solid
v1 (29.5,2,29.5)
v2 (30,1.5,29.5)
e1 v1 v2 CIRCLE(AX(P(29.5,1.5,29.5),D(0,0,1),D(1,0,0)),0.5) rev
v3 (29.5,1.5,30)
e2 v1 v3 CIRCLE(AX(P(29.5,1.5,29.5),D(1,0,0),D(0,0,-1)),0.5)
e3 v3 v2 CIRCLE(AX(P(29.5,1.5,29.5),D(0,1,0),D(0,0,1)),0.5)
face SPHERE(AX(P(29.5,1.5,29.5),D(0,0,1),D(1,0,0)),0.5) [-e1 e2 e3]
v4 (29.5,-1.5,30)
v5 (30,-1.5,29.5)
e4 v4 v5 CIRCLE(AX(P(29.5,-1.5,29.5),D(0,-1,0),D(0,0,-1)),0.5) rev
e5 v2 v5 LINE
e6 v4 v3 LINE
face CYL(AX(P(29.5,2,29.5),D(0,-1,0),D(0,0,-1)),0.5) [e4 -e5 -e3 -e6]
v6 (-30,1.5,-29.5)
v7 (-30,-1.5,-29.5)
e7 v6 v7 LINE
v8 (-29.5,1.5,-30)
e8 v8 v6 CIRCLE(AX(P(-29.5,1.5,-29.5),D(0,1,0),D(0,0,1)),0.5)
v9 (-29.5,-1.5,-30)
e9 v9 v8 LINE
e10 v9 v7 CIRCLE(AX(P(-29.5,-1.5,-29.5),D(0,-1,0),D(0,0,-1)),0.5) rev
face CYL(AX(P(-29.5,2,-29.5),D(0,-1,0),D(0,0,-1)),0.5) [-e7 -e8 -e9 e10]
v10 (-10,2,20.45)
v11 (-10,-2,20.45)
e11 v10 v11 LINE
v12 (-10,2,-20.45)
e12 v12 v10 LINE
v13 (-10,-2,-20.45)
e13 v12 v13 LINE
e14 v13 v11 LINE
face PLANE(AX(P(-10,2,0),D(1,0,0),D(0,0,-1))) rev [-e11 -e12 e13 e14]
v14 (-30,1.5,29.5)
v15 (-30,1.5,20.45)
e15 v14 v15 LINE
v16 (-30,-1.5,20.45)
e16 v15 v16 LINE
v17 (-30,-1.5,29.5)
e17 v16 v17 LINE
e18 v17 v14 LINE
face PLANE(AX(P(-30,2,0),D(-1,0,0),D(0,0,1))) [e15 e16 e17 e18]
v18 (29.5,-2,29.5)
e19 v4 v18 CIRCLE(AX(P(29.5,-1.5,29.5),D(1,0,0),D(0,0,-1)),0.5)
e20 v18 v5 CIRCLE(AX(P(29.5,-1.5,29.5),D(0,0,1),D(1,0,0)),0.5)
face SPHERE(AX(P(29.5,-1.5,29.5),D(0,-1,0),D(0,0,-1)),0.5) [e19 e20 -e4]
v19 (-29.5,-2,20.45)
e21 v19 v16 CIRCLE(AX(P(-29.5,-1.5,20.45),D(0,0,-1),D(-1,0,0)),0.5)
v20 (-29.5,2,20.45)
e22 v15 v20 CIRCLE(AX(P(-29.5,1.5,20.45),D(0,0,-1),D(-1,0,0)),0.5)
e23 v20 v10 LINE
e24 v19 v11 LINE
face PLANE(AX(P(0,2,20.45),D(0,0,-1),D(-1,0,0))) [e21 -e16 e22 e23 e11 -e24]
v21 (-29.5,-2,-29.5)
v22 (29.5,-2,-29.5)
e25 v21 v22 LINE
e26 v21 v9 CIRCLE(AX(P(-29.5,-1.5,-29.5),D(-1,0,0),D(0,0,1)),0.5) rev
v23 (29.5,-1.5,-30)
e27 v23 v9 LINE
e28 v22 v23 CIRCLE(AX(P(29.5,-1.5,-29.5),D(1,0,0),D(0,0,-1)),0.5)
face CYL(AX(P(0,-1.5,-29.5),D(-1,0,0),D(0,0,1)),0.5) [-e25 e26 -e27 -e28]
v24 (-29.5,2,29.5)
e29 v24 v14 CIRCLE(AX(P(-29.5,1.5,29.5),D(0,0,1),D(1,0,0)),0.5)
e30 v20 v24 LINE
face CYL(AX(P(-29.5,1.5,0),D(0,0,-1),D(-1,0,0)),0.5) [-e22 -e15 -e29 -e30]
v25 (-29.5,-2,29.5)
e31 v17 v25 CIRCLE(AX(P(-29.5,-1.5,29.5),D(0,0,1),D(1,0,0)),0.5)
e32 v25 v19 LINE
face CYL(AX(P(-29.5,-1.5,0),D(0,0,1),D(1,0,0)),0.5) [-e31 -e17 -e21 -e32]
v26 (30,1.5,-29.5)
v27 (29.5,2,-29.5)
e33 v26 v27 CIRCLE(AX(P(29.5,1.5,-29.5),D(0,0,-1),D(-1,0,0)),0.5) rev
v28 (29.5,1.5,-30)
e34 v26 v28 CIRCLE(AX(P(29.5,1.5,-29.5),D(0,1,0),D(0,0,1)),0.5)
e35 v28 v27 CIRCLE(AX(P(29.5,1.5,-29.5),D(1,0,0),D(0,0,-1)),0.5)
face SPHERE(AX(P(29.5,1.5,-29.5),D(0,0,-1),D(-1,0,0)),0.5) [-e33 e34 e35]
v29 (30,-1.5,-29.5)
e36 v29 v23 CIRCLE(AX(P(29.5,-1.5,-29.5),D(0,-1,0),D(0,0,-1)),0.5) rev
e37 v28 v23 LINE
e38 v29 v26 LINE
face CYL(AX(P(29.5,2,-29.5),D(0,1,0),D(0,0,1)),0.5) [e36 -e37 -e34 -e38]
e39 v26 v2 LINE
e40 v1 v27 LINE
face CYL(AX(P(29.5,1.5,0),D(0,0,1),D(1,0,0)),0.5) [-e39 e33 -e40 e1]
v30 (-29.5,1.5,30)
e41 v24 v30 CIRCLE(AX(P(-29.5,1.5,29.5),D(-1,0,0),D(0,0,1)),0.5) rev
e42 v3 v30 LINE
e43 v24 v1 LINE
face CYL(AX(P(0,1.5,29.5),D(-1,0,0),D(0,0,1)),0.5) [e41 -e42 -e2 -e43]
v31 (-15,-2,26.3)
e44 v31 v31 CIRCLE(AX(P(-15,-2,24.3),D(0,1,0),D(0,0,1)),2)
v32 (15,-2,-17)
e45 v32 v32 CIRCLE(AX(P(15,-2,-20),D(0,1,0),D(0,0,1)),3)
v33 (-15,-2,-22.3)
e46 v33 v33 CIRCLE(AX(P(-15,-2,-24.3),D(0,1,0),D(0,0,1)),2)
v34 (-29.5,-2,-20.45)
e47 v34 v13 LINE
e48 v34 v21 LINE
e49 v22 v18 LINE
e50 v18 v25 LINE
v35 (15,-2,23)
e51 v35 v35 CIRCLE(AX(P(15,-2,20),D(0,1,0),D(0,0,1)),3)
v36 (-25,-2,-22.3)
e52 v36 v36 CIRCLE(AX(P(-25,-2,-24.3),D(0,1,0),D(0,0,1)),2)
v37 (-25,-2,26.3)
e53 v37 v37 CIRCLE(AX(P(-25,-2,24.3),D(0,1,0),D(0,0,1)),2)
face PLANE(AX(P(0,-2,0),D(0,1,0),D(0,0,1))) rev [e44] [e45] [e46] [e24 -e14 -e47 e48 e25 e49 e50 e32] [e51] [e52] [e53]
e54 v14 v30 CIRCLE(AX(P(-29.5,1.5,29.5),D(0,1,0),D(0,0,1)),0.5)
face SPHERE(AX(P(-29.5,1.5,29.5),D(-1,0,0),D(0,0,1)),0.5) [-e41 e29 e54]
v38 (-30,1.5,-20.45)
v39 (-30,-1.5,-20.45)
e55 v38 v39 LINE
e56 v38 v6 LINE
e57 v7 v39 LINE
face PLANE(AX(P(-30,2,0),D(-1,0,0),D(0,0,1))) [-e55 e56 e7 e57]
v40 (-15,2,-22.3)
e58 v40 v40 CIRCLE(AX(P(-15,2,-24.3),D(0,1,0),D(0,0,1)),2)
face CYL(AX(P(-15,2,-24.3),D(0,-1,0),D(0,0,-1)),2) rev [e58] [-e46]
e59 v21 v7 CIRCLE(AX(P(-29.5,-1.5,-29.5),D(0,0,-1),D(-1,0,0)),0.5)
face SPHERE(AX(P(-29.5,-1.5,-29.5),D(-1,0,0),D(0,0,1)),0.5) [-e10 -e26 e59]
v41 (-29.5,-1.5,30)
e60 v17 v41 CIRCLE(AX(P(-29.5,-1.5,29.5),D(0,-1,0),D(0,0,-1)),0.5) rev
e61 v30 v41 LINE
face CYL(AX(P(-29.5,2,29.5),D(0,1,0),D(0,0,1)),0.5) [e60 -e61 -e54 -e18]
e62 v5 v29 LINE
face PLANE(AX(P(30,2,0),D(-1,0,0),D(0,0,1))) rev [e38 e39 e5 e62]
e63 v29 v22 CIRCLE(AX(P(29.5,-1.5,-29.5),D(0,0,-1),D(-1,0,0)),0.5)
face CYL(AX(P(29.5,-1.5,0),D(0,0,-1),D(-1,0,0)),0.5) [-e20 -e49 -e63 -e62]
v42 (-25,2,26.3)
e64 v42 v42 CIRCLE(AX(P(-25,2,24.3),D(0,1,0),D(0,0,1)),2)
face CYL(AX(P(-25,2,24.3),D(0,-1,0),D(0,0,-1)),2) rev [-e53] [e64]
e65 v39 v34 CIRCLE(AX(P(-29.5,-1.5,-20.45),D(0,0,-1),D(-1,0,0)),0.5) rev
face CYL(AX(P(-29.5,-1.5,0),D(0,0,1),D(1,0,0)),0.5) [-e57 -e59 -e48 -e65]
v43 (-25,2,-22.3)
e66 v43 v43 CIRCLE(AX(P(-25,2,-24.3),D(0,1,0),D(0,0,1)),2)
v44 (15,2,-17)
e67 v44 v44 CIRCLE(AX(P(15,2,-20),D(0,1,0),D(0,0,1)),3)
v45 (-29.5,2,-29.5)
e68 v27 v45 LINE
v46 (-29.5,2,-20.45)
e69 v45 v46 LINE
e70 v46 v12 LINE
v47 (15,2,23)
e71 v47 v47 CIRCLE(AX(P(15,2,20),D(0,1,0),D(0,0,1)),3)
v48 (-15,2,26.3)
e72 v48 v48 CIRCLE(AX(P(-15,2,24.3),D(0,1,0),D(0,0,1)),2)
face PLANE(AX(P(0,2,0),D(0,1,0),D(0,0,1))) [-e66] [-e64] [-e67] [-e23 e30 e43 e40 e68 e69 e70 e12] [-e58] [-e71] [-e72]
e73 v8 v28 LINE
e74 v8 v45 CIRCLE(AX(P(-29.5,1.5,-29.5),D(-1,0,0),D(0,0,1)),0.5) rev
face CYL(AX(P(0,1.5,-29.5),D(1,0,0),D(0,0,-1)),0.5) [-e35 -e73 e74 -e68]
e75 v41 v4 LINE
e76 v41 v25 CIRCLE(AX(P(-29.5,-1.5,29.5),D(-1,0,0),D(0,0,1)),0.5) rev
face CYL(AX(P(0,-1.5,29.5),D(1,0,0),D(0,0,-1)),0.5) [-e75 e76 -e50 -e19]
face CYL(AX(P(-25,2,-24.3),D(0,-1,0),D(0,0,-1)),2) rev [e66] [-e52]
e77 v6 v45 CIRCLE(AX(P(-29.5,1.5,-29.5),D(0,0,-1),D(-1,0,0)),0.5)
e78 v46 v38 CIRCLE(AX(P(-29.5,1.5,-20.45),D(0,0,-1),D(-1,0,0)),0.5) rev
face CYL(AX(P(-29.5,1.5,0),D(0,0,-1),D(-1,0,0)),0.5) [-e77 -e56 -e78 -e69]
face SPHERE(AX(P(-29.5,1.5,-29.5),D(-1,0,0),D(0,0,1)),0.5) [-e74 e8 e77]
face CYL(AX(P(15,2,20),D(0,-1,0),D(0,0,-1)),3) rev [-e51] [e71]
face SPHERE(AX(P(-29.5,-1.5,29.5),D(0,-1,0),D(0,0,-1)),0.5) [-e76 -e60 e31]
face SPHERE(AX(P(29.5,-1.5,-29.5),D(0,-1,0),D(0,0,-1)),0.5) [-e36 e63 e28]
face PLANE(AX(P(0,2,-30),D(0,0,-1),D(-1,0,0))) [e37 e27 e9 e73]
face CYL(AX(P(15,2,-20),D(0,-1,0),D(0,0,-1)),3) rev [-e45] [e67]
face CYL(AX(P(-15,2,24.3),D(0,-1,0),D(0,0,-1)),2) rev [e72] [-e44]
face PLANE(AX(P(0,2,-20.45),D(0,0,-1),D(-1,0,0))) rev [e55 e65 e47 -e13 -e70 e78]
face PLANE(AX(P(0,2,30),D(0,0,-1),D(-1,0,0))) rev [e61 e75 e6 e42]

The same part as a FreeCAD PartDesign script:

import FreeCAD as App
import Part
import Sketcher

V = App.Vector


def edges_at(feature, points):
    """Names of the edges that pass closest to the given points."""
    edges = feature.Shape.Edges
    near = lambda p: min(range(len(edges)), key=lambda i: edges[i].distToShape(Part.Vertex(*p))[0])
    return sorted({f"Edge{near(p) + 1}" for p in points})

doc = App.newDocument("Part")
body = doc.addObject("PartDesign::Body", "Body")

# Sketch on XZ plane
sketch1 = body.newObject("Sketcher::SketchObject", "Sketch")
sketch1.AttachmentSupport = (doc.getObject("XZ_Plane"), [""])
sketch1.MapMode = "FlatFace"
sketch1.addGeometry(Part.LineSegment(V(-30, 20.4, 0), V(-30, 30, 0)), False)
sketch1.addGeometry(Part.LineSegment(V(-30, 30, 0), V(30, 30, 0)), False)
sketch1.addGeometry(Part.LineSegment(V(30, 30, 0), V(30, -30, 0)), False)
sketch1.addGeometry(Part.LineSegment(V(30, -30, 0), V(-30, -30, 0)), False)
sketch1.addGeometry(Part.LineSegment(V(-30, -30, 0), V(-30, -20.4, 0)), False)
sketch1.addGeometry(Part.LineSegment(V(-30, -20.4, 0), V(-10, -20.4, 0)), False)
sketch1.addGeometry(Part.LineSegment(V(-10, -20.4, 0), V(-10, 20.4, 0)), False)
sketch1.addGeometry(Part.LineSegment(V(-10, 20.4, 0), V(-30, 20.4, 0)), False)
sketch1.addGeometry(Part.Circle(V(-25, 24.3, 0), V(0, 0, 1), 2), False)
sketch1.addGeometry(Part.Circle(V(-15, 24.3, 0), V(0, 0, 1), 2), False)
sketch1.addGeometry(Part.Circle(V(15, 20, 0), V(0, 0, 1), 3), False)
sketch1.addGeometry(Part.Circle(V(-25, -24.3, 0), V(0, 0, 1), 2), False)
sketch1.addGeometry(Part.Circle(V(-15, -24.3, 0), V(0, 0, 1), 2), False)
sketch1.addGeometry(Part.Circle(V(15, -20, 0), V(0, 0, 1), 3), False)
sketch1.addConstraint(Sketcher.Constraint("Coincident", 0, 2, 1, 1))
sketch1.addConstraint(Sketcher.Constraint("Coincident", 1, 2, 2, 1))
sketch1.addConstraint(Sketcher.Constraint("Coincident", 2, 2, 3, 1))
sketch1.addConstraint(Sketcher.Constraint("Coincident", 3, 2, 4, 1))
sketch1.addConstraint(Sketcher.Constraint("Coincident", 4, 2, 5, 1))
sketch1.addConstraint(Sketcher.Constraint("Coincident", 5, 2, 6, 1))
sketch1.addConstraint(Sketcher.Constraint("Coincident", 6, 2, 7, 1))
sketch1.addConstraint(Sketcher.Constraint("Coincident", 7, 2, 0, 1))
sketch1.addConstraint(Sketcher.Constraint("Vertical", 0))
sketch1.addConstraint(Sketcher.Constraint("Horizontal", 1))
sketch1.addConstraint(Sketcher.Constraint("Vertical", 2))
sketch1.addConstraint(Sketcher.Constraint("Horizontal", 3))
sketch1.addConstraint(Sketcher.Constraint("Vertical", 4))
sketch1.addConstraint(Sketcher.Constraint("Horizontal", 5))
sketch1.addConstraint(Sketcher.Constraint("Vertical", 6))
sketch1.addConstraint(Sketcher.Constraint("Horizontal", 7))
sketch1.addConstraint(Sketcher.Constraint("Equal", 8, 9))
sketch1.addConstraint(Sketcher.Constraint("Equal", 9, 11))
sketch1.addConstraint(Sketcher.Constraint("Equal", 11, 12))
sketch1.addConstraint(Sketcher.Constraint("Equal", 10, 13))
sketch1.addConstraint(Sketcher.Constraint("Symmetric", 0, 2, 2, 2, -1, 1))
sketch1.addConstraint(Sketcher.Constraint("Symmetric", 8, 3, 11, 3, -1))
sketch1.addConstraint(Sketcher.Constraint("Symmetric", 9, 3, 12, 3, -1))
sketch1.addConstraint(Sketcher.Constraint("Symmetric", 10, 3, 13, 3, -1))
sketch1.addConstraint(Sketcher.Constraint("Symmetric", 4, 2, 7, 2, -1))
sketch1.addConstraint(Sketcher.Constraint("Horizontal", 8, 3, 9, 3))
sketch1.addConstraint(Sketcher.Constraint("Equal", 3, 2))
sketch1.addConstraint(Sketcher.Constraint("Diameter", 8, 4.0))
sketch1.addConstraint(Sketcher.Constraint("Diameter", 10, 6.0))
sketch1.addConstraint(Sketcher.Constraint("DistanceX", 1, 1, 1, 2, 60.0))
sketch1.addConstraint(Sketcher.Constraint("DistanceX", 5, 1, 5, 2, 20.0))
sketch1.addConstraint(Sketcher.Constraint("DistanceY", 6, 1, 6, 2, 40.9))
sketch1.addConstraint(Sketcher.Constraint("DistanceX", 8, 3, -1, 1, 25.0))
sketch1.addConstraint(Sketcher.Constraint("DistanceX", 9, 3, -1, 1, 15.0))
sketch1.addConstraint(Sketcher.Constraint("DistanceX", -1, 1, 10, 3, 15.0))
sketch1.addConstraint(Sketcher.Constraint("DistanceY", -1, 1, 10, 3, 20.0))
sketch1.addConstraint(Sketcher.Constraint("DistanceY", -1, 1, 8, 3, 24.3))
pad1 = body.newObject("PartDesign::Pad", "Pad")
pad1.Profile = sketch1
pad1.Length = 4
pad1.Midplane = True
doc.recompute()

fillet = body.newObject("PartDesign::Fillet", "Fillet")
fillet.Base = (pad1, edges_at(pad1, [
    (-30, -2, -25.225),
    (0, -2, -30),
    (30, -2, 0),
    (0, -2, 30),
    (-30, -2, 25.225),
    (-30, 0, -30),
    (30, 0, -30),
    (30, 0, 30),
    (-30, 0, 30),
    (-30, 2, 25.225),
    (0, 2, 30),
    (30, 2, 0),
    (0, 2, -30),
    (-30, 2, -25.225),
]))
fillet.Radius = 0.5

doc.recompute()
